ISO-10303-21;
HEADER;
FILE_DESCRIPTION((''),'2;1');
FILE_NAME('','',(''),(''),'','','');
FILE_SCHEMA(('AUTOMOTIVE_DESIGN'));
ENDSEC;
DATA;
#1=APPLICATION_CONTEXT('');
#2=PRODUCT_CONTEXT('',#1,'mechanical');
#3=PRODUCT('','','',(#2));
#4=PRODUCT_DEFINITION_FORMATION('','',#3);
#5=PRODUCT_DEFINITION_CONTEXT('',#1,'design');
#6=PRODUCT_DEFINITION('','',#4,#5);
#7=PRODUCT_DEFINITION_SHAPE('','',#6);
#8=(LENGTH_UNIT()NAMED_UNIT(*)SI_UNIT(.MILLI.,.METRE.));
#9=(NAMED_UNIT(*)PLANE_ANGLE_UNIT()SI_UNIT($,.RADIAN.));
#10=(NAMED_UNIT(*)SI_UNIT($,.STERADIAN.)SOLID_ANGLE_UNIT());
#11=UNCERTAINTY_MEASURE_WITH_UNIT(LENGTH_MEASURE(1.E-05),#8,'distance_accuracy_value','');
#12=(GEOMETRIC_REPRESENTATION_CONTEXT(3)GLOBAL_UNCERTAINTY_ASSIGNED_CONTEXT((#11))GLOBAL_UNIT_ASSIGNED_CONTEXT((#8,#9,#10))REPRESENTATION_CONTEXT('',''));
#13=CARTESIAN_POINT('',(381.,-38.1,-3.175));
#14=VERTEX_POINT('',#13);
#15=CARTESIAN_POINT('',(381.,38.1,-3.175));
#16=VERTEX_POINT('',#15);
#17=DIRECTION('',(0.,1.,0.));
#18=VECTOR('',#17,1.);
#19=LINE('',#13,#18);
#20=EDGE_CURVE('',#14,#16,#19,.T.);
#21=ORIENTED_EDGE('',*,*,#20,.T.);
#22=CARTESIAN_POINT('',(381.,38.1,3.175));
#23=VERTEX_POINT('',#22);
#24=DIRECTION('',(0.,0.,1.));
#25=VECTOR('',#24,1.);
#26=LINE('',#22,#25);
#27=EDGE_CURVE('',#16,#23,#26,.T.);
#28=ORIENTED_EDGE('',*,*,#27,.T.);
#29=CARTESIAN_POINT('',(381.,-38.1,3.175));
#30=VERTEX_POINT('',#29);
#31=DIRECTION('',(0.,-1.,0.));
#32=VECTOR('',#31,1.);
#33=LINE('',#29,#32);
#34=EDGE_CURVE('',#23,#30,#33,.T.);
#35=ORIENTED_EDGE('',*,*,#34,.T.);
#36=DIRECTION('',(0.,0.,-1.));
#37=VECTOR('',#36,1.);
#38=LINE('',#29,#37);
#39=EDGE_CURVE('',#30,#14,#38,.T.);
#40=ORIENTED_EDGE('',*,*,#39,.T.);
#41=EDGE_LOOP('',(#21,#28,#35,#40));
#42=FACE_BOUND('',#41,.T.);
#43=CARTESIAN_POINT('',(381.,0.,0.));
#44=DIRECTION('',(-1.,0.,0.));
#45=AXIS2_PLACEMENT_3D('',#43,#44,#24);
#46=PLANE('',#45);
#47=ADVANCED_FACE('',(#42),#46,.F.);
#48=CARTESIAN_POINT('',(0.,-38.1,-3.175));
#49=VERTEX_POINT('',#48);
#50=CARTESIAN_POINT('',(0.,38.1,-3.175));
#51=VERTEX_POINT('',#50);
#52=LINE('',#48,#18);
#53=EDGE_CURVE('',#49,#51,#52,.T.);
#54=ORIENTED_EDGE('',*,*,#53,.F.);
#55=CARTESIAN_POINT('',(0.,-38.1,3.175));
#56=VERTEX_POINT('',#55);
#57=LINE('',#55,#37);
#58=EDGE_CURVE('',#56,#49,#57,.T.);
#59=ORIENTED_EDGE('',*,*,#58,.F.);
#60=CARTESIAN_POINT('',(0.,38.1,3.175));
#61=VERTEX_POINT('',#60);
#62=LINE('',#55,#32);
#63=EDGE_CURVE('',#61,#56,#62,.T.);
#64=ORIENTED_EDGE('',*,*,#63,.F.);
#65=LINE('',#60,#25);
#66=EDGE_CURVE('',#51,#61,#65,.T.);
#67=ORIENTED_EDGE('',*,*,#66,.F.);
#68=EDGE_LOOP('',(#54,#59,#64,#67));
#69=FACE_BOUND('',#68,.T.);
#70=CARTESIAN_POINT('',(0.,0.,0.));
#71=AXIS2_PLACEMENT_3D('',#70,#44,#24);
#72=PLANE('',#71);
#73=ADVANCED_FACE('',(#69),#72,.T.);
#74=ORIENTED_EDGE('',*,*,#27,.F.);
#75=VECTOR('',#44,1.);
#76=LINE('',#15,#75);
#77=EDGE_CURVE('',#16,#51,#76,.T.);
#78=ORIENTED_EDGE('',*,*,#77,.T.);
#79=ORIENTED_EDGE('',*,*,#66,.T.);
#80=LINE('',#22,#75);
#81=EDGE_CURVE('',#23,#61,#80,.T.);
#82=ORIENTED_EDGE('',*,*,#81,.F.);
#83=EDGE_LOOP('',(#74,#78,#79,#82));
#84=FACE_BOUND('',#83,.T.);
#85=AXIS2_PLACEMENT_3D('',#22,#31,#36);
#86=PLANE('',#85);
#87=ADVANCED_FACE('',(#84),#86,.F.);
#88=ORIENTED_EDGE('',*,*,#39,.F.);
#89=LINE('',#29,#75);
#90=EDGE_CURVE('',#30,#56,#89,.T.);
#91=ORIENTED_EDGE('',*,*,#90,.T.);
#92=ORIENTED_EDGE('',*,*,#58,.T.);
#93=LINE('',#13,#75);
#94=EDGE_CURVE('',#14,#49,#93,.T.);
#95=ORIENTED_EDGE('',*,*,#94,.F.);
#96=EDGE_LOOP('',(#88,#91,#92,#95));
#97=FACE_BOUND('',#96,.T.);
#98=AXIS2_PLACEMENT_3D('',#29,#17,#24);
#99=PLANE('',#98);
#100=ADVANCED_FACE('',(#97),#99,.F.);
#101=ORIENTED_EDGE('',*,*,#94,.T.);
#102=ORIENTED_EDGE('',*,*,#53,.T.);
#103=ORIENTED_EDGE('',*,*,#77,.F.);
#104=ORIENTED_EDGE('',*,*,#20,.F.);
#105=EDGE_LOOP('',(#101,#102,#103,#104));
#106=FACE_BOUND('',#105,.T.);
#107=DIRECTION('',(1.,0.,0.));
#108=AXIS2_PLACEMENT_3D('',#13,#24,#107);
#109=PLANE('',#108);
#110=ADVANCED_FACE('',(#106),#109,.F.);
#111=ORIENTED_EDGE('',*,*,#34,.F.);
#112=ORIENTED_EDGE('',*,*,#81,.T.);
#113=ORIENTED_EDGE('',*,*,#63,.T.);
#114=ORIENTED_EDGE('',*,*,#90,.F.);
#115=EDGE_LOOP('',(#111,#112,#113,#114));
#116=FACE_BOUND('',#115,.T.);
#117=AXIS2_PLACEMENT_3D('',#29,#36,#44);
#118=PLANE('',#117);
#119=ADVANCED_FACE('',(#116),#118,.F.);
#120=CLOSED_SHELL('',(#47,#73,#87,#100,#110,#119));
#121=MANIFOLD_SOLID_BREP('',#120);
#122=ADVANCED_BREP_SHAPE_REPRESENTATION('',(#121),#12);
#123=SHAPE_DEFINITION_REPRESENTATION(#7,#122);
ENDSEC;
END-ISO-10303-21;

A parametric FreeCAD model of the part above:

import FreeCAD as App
import Part
import Sketcher
Q = App.Units.Quantity

doc = App.newDocument("Part")
body = doc.addObject("PartDesign::Body", "Body")

# Sketch on YZ plane
sketch1 = body.newObject("Sketcher::SketchObject", "Sketch")
sketch1.AttachmentSupport = (doc.getObject("YZ_Plane"), [""])
sketch1.MapMode = "FlatFace"
sketch1.addGeometry([
    Part.LineSegment(App.Vector(38, 3, 0), App.Vector(-38, 3, 0)),
    Part.LineSegment(App.Vector(-38, 3, 0), App.Vector(-38, -3, 0)),
    Part.LineSegment(App.Vector(-38, -3, 0), App.Vector(38, -3, 0)),
    Part.LineSegment(App.Vector(38, -3, 0), App.Vector(38, 3, 0)),
], False)
sketch1.addConstraint([
    Sketcher.Constraint("Coincident", 0, 2, 1, 1),
    Sketcher.Constraint("Coincident", 1, 2, 2, 1),
    Sketcher.Constraint("Coincident", 2, 2, 3, 1),
    Sketcher.Constraint("Coincident", 3, 2, 0, 1),
    Sketcher.Constraint("Horizontal", 0),
    Sketcher.Constraint("Vertical", 1),
    Sketcher.Constraint("Horizontal", 2),
    Sketcher.Constraint("Vertical", 3),
    Sketcher.Constraint("Symmetric", 0, 2, 2, 2, -1, 1),
    Sketcher.Constraint("DistanceX", 0, 2, 0, 1, Q("3 in")),
    Sketcher.Constraint("DistanceY", 1, 2, 1, 1, Q("0.25 in")),
])
pad1 = body.newObject("PartDesign::Pad", "Pad")
pad1.Profile = sketch1
pad1.Length = Q("15 in")

doc.recompute()
